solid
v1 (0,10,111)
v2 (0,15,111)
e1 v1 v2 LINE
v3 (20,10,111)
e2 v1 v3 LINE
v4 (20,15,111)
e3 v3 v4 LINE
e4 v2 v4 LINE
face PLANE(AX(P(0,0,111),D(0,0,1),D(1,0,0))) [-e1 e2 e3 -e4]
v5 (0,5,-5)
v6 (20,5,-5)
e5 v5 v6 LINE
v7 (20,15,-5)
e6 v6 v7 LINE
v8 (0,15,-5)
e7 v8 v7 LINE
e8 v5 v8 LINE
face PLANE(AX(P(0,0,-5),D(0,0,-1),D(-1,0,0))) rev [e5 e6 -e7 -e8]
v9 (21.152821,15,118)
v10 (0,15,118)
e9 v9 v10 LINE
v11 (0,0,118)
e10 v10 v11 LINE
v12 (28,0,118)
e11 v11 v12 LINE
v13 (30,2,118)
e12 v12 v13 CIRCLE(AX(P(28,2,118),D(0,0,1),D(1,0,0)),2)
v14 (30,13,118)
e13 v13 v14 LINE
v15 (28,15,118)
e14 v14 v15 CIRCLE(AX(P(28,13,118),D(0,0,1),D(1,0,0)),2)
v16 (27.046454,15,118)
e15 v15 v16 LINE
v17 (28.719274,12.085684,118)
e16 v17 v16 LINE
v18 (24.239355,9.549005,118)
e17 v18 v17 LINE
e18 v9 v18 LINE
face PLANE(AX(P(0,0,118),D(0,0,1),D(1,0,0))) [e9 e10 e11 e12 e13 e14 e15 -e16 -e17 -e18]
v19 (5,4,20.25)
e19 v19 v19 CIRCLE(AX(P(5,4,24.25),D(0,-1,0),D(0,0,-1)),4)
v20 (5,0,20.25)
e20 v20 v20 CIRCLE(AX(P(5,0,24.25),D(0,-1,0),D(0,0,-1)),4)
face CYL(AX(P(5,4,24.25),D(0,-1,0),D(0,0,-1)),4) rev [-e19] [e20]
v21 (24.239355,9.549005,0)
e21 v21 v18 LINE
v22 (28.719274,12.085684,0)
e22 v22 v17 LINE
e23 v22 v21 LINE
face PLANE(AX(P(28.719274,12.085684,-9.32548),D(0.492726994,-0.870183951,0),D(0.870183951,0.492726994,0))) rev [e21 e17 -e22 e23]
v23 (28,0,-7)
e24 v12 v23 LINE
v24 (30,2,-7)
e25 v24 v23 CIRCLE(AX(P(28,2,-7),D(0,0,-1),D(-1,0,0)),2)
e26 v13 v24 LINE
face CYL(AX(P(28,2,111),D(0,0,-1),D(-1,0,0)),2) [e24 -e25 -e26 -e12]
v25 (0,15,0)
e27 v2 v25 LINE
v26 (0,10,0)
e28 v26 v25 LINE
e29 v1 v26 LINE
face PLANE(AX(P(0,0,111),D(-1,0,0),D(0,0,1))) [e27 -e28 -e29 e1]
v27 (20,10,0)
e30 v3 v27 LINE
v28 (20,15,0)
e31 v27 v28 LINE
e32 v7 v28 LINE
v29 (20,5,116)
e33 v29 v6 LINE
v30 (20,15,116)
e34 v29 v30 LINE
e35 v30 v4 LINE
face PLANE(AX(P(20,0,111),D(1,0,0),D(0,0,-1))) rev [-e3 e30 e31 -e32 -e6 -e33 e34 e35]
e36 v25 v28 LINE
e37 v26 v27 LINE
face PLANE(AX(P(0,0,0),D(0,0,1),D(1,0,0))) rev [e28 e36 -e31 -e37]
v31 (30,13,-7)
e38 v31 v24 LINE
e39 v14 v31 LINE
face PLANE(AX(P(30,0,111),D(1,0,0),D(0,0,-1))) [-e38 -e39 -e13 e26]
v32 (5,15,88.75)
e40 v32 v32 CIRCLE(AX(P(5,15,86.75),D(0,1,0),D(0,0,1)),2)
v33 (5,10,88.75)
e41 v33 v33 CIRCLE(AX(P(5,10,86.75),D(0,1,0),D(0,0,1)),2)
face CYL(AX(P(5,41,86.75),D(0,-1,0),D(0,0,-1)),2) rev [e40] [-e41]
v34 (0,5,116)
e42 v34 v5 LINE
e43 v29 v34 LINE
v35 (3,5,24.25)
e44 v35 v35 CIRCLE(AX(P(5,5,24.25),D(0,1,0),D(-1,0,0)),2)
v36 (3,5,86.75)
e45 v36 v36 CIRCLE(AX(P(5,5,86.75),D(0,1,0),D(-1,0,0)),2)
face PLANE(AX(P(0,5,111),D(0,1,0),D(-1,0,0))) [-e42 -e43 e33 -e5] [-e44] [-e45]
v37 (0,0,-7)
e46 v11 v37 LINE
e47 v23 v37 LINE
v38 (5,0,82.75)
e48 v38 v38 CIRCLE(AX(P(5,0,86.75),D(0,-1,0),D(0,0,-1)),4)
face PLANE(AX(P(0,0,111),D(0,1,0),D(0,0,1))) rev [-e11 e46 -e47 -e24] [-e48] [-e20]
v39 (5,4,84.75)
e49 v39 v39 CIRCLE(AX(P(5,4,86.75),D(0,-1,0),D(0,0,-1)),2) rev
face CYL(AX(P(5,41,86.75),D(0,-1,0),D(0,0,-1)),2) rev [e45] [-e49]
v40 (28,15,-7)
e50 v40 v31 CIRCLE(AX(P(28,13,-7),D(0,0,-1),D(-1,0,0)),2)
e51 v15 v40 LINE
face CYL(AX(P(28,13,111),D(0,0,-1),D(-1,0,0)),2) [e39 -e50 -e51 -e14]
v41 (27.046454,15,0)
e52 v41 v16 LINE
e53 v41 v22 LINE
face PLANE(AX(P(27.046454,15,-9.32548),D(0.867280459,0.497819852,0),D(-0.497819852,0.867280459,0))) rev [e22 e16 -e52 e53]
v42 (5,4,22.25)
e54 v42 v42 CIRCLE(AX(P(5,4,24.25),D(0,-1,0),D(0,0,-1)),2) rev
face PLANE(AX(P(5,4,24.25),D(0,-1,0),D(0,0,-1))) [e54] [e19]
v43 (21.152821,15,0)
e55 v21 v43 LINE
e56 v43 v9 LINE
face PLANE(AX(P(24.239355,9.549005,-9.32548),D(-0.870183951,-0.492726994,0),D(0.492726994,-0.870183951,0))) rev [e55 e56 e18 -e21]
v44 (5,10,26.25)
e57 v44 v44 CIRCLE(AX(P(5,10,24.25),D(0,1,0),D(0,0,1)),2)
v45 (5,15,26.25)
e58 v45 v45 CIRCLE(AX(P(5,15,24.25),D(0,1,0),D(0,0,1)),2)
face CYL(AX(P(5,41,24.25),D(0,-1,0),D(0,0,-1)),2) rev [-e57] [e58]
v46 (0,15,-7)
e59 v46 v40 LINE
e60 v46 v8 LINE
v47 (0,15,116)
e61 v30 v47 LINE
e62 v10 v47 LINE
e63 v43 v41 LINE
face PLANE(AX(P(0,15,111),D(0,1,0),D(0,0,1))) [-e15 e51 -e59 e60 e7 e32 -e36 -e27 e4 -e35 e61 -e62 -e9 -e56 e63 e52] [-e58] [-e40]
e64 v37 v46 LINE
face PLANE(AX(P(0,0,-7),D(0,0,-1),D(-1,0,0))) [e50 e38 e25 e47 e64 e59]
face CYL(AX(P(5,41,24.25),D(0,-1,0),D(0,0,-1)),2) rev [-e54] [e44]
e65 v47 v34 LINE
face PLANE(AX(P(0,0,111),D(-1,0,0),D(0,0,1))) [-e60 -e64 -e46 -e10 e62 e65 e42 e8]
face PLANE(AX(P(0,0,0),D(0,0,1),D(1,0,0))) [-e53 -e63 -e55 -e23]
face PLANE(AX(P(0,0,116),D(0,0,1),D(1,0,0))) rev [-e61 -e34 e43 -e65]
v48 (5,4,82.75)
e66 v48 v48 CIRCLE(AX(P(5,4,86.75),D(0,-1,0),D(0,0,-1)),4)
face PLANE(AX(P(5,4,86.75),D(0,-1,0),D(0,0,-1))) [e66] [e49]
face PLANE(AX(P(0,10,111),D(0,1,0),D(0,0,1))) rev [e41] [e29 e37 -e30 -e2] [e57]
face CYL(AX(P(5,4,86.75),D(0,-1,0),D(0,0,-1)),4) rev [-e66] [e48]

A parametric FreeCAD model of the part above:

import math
import FreeCAD as App
import Part
import Sketcher

V = App.Vector


def add_polygon(sketch, points):
    """Adds a closed chain of lines whose ends are joined by coincident constraints."""
    first, n = sketch.GeometryCount, len(points)
    for a, b in zip(points, points[1:] + points[:1]):
        sketch.addGeometry(Part.LineSegment(App.Vector(*a, 0), App.Vector(*b, 0)), False)
    for i in range(n):
        sketch.addConstraint(Sketcher.Constraint("Coincident", first + i, 2, first + (i + 1) % n, 1))

doc = App.newDocument("Part")
body = doc.addObject("PartDesign::Body", "Body")

# Sketch on XY plane
sketch1 = body.newObject("Sketcher::SketchObject", "Sketch")
sketch1.AttachmentSupport = (doc.getObject("XY_Plane"), [""])
sketch1.MapMode = "FlatFace"
sketch1.addGeometry(Part.LineSegment(V(0, 5, 0), V(0, 0, 0)), False)
sketch1.addGeometry(Part.LineSegment(V(0, 0, 0), V(28, 0, 0)), False)
sketch1.addGeometry(Part.ArcOfCircle(Part.Circle(V(28, 2, 0), V(0, 0, 1), 2), math.radians(-90), math.radians(0)), False)
sketch1.addGeometry(Part.LineSegment(V(30, 2, 0), V(30, 13, 0)), False)
sketch1.addGeometry(Part.ArcOfCircle(Part.Circle(V(28, 13, 0), V(0, 0, 1), 2), math.radians(0), math.radians(90)), False)
sketch1.addGeometry(Part.LineSegment(V(28, 15, 0), V(0, 15, 0)), False)
sketch1.addGeometry(Part.LineSegment(V(0, 15, 0), V(0, 10, 0)), False)
sketch1.addGeometry(Part.LineSegment(V(0, 10, 0), V(20, 10, 0)), False)
sketch1.addGeometry(Part.LineSegment(V(20, 10, 0), V(20, 5, 0)), False)
sketch1.addGeometry(Part.LineSegment(V(20, 5, 0), V(0, 5, 0)), False)
sketch1.addConstraint(Sketcher.Constraint("Coincident", 0, 2, 1, 1))
sketch1.addConstraint(Sketcher.Constraint("Tangent", 1, 2, 2, 1))
sketch1.addConstraint(Sketcher.Constraint("Tangent", 2, 2, 3, 1))
sketch1.addConstraint(Sketcher.Constraint("Tangent", 3, 2, 4, 1))
sketch1.addConstraint(Sketcher.Constraint("Tangent", 4, 2, 5, 1))
sketch1.addConstraint(Sketcher.Constraint("Coincident", 5, 2, 6, 1))
sketch1.addConstraint(Sketcher.Constraint("Coincident", 6, 2, 7, 1))
sketch1.addConstraint(Sketcher.Constraint("Coincident", 7, 2, 8, 1))
sketch1.addConstraint(Sketcher.Constraint("Coincident", 8, 2, 9, 1))
sketch1.addConstraint(Sketcher.Constraint("Coincident", 9, 2, 0, 1))
sketch1.addConstraint(Sketcher.Constraint("Vertical", 0))
sketch1.addConstraint(Sketcher.Constraint("Horizontal", 1))
sketch1.addConstraint(Sketcher.Constraint("Vertical", 3))
sketch1.addConstraint(Sketcher.Constraint("Horizontal", 5))
sketch1.addConstraint(Sketcher.Constraint("Vertical", 6))
sketch1.addConstraint(Sketcher.Constraint("Horizontal", 7))
sketch1.addConstraint(Sketcher.Constraint("Vertical", 8))
sketch1.addConstraint(Sketcher.Constraint("Horizontal", 9))
sketch1.addConstraint(Sketcher.Constraint("Coincident", 0, 2, -1, 1))
sketch1.addConstraint(Sketcher.Constraint("Equal", 2, 4))
sketch1.addConstraint(Sketcher.Constraint("PointOnObject", 5, 2, -2))
sketch1.addConstraint(Sketcher.Constraint("Equal", 0, 6))
sketch1.addConstraint(Sketcher.Constraint("Equal", 6, 8))
sketch1.addConstraint(Sketcher.Constraint("Radius", 2, 2.0))
sketch1.addConstraint(Sketcher.Constraint("DistanceX", 1, 1, 1, 2, 28.0))
sketch1.addConstraint(Sketcher.Constraint("DistanceX", 7, 1, 7, 2, 20.0))
sketch1.addConstraint(Sketcher.Constraint("DistanceY", 0, 2, 0, 1, 5.0))
pad1 = body.newObject("PartDesign::Pad", "Pad")
pad1.Profile = sketch1
pad1.Length = 111

# Sketch on XY plane
sketch2 = body.newObject("Sketcher::SketchObject", "Sketch001")
sketch2.AttachmentSupport = (doc.getObject("XY_Plane"), [""])
sketch2.MapMode = "FlatFace"
sketch2.AttachmentOffset = App.Placement(V(0, 0, 111), App.Rotation())
sketch2.addGeometry(Part.LineSegment(V(20, 15, 0), V(20, 5, 0)), False)
sketch2.addGeometry(Part.LineSegment(V(20, 5, 0), V(0, 5, 0)), False)
sketch2.addGeometry(Part.LineSegment(V(0, 5, 0), V(0, 0, 0)), False)
sketch2.addGeometry(Part.LineSegment(V(0, 0, 0), V(28, 0, 0)), False)
sketch2.addGeometry(Part.ArcOfCircle(Part.Circle(V(28, 2, 0), V(0, 0, 1), 2), math.radians(-90), math.radians(0)), False)
sketch2.addGeometry(Part.LineSegment(V(30, 2, 0), V(30, 13, 0)), False)
sketch2.addGeometry(Part.ArcOfCircle(Part.Circle(V(28, 13, 0), V(0, 0, 1), 2), math.radians(0), math.radians(90)), False)
sketch2.addGeometry(Part.LineSegment(V(28, 15, 0), V(20, 15, 0)), False)
sketch2.addConstraint(Sketcher.Constraint("Coincident", 0, 2, 1, 1))
sketch2.addConstraint(Sketcher.Constraint("Coincident", 1, 2, 2, 1))
sketch2.addConstraint(Sketcher.Constraint("Coincident", 2, 2, 3, 1))
sketch2.addConstraint(Sketcher.Constraint("Tangent", 3, 2, 4, 1))
sketch2.addConstraint(Sketcher.Constraint("Tangent", 4, 2, 5, 1))
sketch2.addConstraint(Sketcher.Constraint("Tangent", 5, 2, 6, 1))
sketch2.addConstraint(Sketcher.Constraint("Tangent", 6, 2, 7, 1))
sketch2.addConstraint(Sketcher.Constraint("Coincident", 7, 2, 0, 1))
sketch2.addConstraint(Sketcher.Constraint("Vertical", 0))
sketch2.addConstraint(Sketcher.Constraint("Horizontal", 1))
sketch2.addConstraint(Sketcher.Constraint("Vertical", 2))
sketch2.addConstraint(Sketcher.Constraint("Horizontal", 3))
sketch2.addConstraint(Sketcher.Constraint("Vertical", 5))
sketch2.addConstraint(Sketcher.Constraint("Horizontal", 7))
sketch2.addConstraint(Sketcher.Constraint("Coincident", 2, 2, -1, 1))
sketch2.addConstraint(Sketcher.Constraint("Equal", 4, 6))
sketch2.addConstraint(Sketcher.Constraint("Radius", 4, 2.0))
sketch2.addConstraint(Sketcher.Constraint("DistanceX", 1, 2, 1, 1, 20.0))
sketch2.addConstraint(Sketcher.Constraint("DistanceX", 3, 1, 3, 2, 28.0))
sketch2.addConstraint(Sketcher.Constraint("DistanceY", 0, 2, 0, 1, 10.0))
sketch2.addConstraint(Sketcher.Constraint("DistanceY", 2, 2, 2, 1, 5.0))
pad2 = body.newObject("PartDesign::Pad", "Pad001")
pad2.Profile = sketch2
pad2.Length = 5

# Sketch on XY plane
sketch3 = body.newObject("Sketcher::SketchObject", "Sketch002")
sketch3.AttachmentSupport = (doc.getObject("XY_Plane"), [""])
sketch3.MapMode = "FlatFace"
sketch3.AttachmentOffset = App.Placement(V(0, 0, 116), App.Rotation())
sketch3.addGeometry(Part.LineSegment(V(0, 15, 0), V(0, 0, 0)), False)
sketch3.addGeometry(Part.LineSegment(V(0, 0, 0), V(28, 0, 0)), False)
sketch3.addGeometry(Part.ArcOfCircle(Part.Circle(V(28, 2, 0), V(0, 0, 1), 2), math.radians(-90), math.radians(0)), False)
sketch3.addGeometry(Part.LineSegment(V(30, 2, 0), V(30, 13, 0)), False)
sketch3.addGeometry(Part.ArcOfCircle(Part.Circle(V(28, 13, 0), V(0, 0, 1), 2), math.radians(0), math.radians(90)), False)
sketch3.addGeometry(Part.LineSegment(V(28, 15, 0), V(0, 15, 0)), False)
sketch3.addConstraint(Sketcher.Constraint("Coincident", 0, 2, 1, 1))
sketch3.addConstraint(Sketcher.Constraint("Tangent", 1, 2, 2, 1))
sketch3.addConstraint(Sketcher.Constraint("Tangent", 2, 2, 3, 1))
sketch3.addConstraint(Sketcher.Constraint("Tangent", 3, 2, 4, 1))
sketch3.addConstraint(Sketcher.Constraint("Tangent", 4, 2, 5, 1))
sketch3.addConstraint(Sketcher.Constraint("Coincident", 5, 2, 0, 1))
sketch3.addConstraint(Sketcher.Constraint("Vertical", 0))
sketch3.addConstraint(Sketcher.Constraint("Horizontal", 1))
sketch3.addConstraint(Sketcher.Constraint("Vertical", 3))
sketch3.addConstraint(Sketcher.Constraint("Horizontal", 5))
sketch3.addConstraint(Sketcher.Constraint("Coincident", 0, 2, -1, 1))
sketch3.addConstraint(Sketcher.Constraint("Equal", 2, 4))
sketch3.addConstraint(Sketcher.Constraint("Radius", 2, 2.0))
sketch3.addConstraint(Sketcher.Constraint("DistanceX", 1, 1, 1, 2, 28.0))
sketch3.addConstraint(Sketcher.Constraint("DistanceY", 0, 2, 0, 1, 15.0))
pad3 = body.newObject("PartDesign::Pad", "Pad002")
pad3.Profile = sketch3
pad3.Length = 2

# Sketch on XY plane
sketch4 = body.newObject("Sketcher::SketchObject", "Sketch003")
sketch4.AttachmentSupport = (doc.getObject("XY_Plane"), [""])
sketch4.MapMode = "FlatFace"
sketch4.addGeometry(Part.LineSegment(V(20, 5, 0), V(20, 15, 0)), False)
sketch4.addGeometry(Part.LineSegment(V(20, 15, 0), V(28, 15, 0)), False)
sketch4.addGeometry(Part.ArcOfCircle(Part.Circle(V(28, 13, 0), V(0, 0, 1), 2), math.radians(0), math.radians(90)), False)
sketch4.addGeometry(Part.LineSegment(V(30, 13, 0), V(30, 2, 0)), False)
sketch4.addGeometry(Part.ArcOfCircle(Part.Circle(V(28, 2, 0), V(0, 0, 1), 2), math.radians(-90), math.radians(0)), False)
sketch4.addGeometry(Part.LineSegment(V(28, 0, 0), V(0, 0, 0)), False)
sketch4.addGeometry(Part.LineSegment(V(0, 0, 0), V(0, 5, 0)), False)
sketch4.addGeometry(Part.LineSegment(V(0, 5, 0), V(20, 5, 0)), False)
sketch4.addConstraint(Sketcher.Constraint("Coincident", 0, 2, 1, 1))
sketch4.addConstraint(Sketcher.Constraint("Tangent", 1, 2, 2, 2))
sketch4.addConstraint(Sketcher.Constraint("Tangent", 2, 1, 3, 1))
sketch4.addConstraint(Sketcher.Constraint("Tangent", 3, 2, 4, 2))
sketch4.addConstraint(Sketcher.Constraint("Tangent", 4, 1, 5, 1))
sketch4.addConstraint(Sketcher.Constraint("Coincident", 5, 2, 6, 1))
sketch4.addConstraint(Sketcher.Constraint("Coincident", 6, 2, 7, 1))
sketch4.addConstraint(Sketcher.Constraint("Coincident", 7, 2, 0, 1))
sketch4.addConstraint(Sketcher.Constraint("Vertical", 0))
sketch4.addConstraint(Sketcher.Constraint("Horizontal", 1))
sketch4.addConstraint(Sketcher.Constraint("Vertical", 3))
sketch4.addConstraint(Sketcher.Constraint("Horizontal", 5))
sketch4.addConstraint(Sketcher.Constraint("Vertical", 6))
sketch4.addConstraint(Sketcher.Constraint("Horizontal", 7))
sketch4.addConstraint(Sketcher.Constraint("Coincident", 5, 2, -1, 1))
sketch4.addConstraint(Sketcher.Constraint("Equal", 2, 4))
sketch4.addConstraint(Sketcher.Constraint("Radius", 2, 2.0))
sketch4.addConstraint(Sketcher.Constraint("DistanceX", 1, 1, 1, 2, 8.0))
sketch4.addConstraint(Sketcher.Constraint("DistanceX", 5, 2, 5, 1, 28.0))
sketch4.addConstraint(Sketcher.Constraint("DistanceY", 0, 1, 0, 2, 10.0))
sketch4.addConstraint(Sketcher.Constraint("DistanceY", 3, 2, 3, 1, 11.0))
pad4 = body.newObject("PartDesign::Pad", "Pad003")
pad4.Profile = sketch4
pad4.Length = 5
pad4.Reversed = True

# Sketch on XY plane
sketch5 = body.newObject("Sketcher::SketchObject", "Sketch004")
sketch5.AttachmentSupport = (doc.getObject("XY_Plane"), [""])
sketch5.MapMode = "FlatFace"
sketch5.AttachmentOffset = App.Placement(V(0, 0, -5), App.Rotation())
sketch5.addGeometry(Part.LineSegment(V(0, 15, 0), V(28, 15, 0)), False)
sketch5.addGeometry(Part.ArcOfCircle(Part.Circle(V(28, 13, 0), V(0, 0, 1), 2), math.radians(0), math.radians(90)), False)
sketch5.addGeometry(Part.LineSegment(V(30, 13, 0), V(30, 2, 0)), False)
sketch5.addGeometry(Part.ArcOfCircle(Part.Circle(V(28, 2, 0), V(0, 0, 1), 2), math.radians(-90), math.radians(0)), False)
sketch5.addGeometry(Part.LineSegment(V(28, 0, 0), V(0, 0, 0)), False)
sketch5.addGeometry(Part.LineSegment(V(0, 0, 0), V(0, 15, 0)), False)
sketch5.addConstraint(Sketcher.Constraint("Tangent", 0, 2, 1, 2))
sketch5.addConstraint(Sketcher.Constraint("Tangent", 1, 1, 2, 1))
sketch5.addConstraint(Sketcher.Constraint("Tangent", 2, 2, 3, 2))
sketch5.addConstraint(Sketcher.Constraint("Tangent", 3, 1, 4, 1))
sketch5.addConstraint(Sketcher.Constraint("Coincident", 4, 2, 5, 1))
sketch5.addConstraint(Sketcher.Constraint("Coincident", 5, 2, 0, 1))
sketch5.addConstraint(Sketcher.Constraint("Horizontal", 0))
sketch5.addConstraint(Sketcher.Constraint("Vertical", 2))
sketch5.addConstraint(Sketcher.Constraint("Horizontal", 4))
sketch5.addConstraint(Sketcher.Constraint("Vertical", 5))
sketch5.addConstraint(Sketcher.Constraint("Coincident", 4, 2, -1, 1))
sketch5.addConstraint(Sketcher.Constraint("Equal", 1, 3))
sketch5.addConstraint(Sketcher.Constraint("Radius", 1, 2.0))
sketch5.addConstraint(Sketcher.Constraint("DistanceX", 0, 1, 0, 2, 28.0))
sketch5.addConstraint(Sketcher.Constraint("DistanceY", 2, 2, 2, 1, 11.0))
pad5 = body.newObject("PartDesign::Pad", "Pad004")
pad5.Profile = sketch5
pad5.Length = 2
pad5.Reversed = True

# Sketch on XZ plane
sketch6 = body.newObject("Sketcher::SketchObject", "Sketch005")
sketch6.AttachmentSupport = (doc.getObject("XZ_Plane"), [""])
sketch6.MapMode = "FlatFace"
sketch6.addGeometry(Part.Circle(V(5, 24.25, 0), V(0, 0, 1), 2), False)
sketch6.addGeometry(Part.Circle(V(5, 86.75, 0), V(0, 0, 1), 2), False)
sketch6.addConstraint(Sketcher.Constraint("Equal", 0, 1))
sketch6.addConstraint(Sketcher.Constraint("Vertical", 0, 3, 1, 3))
sketch6.addConstraint(Sketcher.Constraint("Diameter", 0, 4.0))
sketch6.addConstraint(Sketcher.Constraint("DistanceX", -1, 1, 0, 3, 5.0))
sketch6.addConstraint(Sketcher.Constraint("DistanceY", 0, 3, 1, 3, 62.5))
sketch6.addConstraint(Sketcher.Constraint("DistanceY", -1, 1, 0, 3, 24.25))
pocket1 = body.newObject("PartDesign::Pocket", "Pocket")
pocket1.Profile = sketch6
pocket1.Length = 41

# Sketch on XZ plane
sketch7 = body.newObject("Sketcher::SketchObject", "Sketch006")
sketch7.AttachmentSupport = (doc.getObject("XZ_Plane"), [""])
sketch7.MapMode = "FlatFace"
sketch7.addGeometry(Part.Circle(V(5, 24.25, 0), V(0, 0, 1), 4), False)
sketch7.addGeometry(Part.Circle(V(5, 86.75, 0), V(0, 0, 1), 4), False)
sketch7.addConstraint(Sketcher.Constraint("Equal", 0, 1))
sketch7.addConstraint(Sketcher.Constraint("Vertical", 0, 3, 1, 3))
sketch7.addConstraint(Sketcher.Constraint("Diameter", 0, 8.0))
sketch7.addConstraint(Sketcher.Constraint("DistanceX", -1, 1, 0, 3, 5.0))
sketch7.addConstraint(Sketcher.Constraint("DistanceY", 0, 3, 1, 3, 62.5))
sketch7.addConstraint(Sketcher.Constraint("DistanceY", -1, 1, 0, 3, 24.25))
pocket2 = body.newObject("PartDesign::Pocket", "Pocket001")
pocket2.Profile = sketch7
pocket2.Length = 4

# Sketch on XY plane
sketch8 = body.newObject("Sketcher::SketchObject", "Sketch007")
sketch8.AttachmentSupport = (doc.getObject("XY_Plane"), [""])
sketch8.MapMode = "FlatFace"
sketch8.AttachmentOffset = App.Placement(V(0, 0, 118), App.Rotation())
add_polygon(sketch8, [(28.719274, 12.085684), (27.046454, 15), (21.152821, 15), (24.239355, 9.549005)])  # lines 0-3
sketch8.addConstraint(Sketcher.Constraint("Horizontal", 1))
sketch8.addConstraint(Sketcher.Constraint("Perpendicular", 2, 3))
sketch8.addConstraint(Sketcher.Constraint("DistanceY", -1, 1, 0, 2, 15.0))
sketch8.addConstraint(Sketcher.Constraint("DistanceX", 2, 2, 0, 2, 2.807099))
sketch8.addConstraint(Sketcher.Constraint("DistanceX", 1, 2, 1, 1, 5.893633))
sketch8.addConstraint(Sketcher.Constraint("DistanceX", -1, 1, 1, 2, 21.152821))
sketch8.addConstraint(Sketcher.Constraint("DistanceX", 0, 2, 3, 2, 1.67282))
sketch8.addConstraint(Sketcher.Constraint("DistanceY", 2, 2, 3, 2, 2.536679))
pocket3 = body.newObject("PartDesign::Pocket", "Pocket002")
pocket3.Profile = sketch8
pocket3.Length = 118

doc.recompute()
